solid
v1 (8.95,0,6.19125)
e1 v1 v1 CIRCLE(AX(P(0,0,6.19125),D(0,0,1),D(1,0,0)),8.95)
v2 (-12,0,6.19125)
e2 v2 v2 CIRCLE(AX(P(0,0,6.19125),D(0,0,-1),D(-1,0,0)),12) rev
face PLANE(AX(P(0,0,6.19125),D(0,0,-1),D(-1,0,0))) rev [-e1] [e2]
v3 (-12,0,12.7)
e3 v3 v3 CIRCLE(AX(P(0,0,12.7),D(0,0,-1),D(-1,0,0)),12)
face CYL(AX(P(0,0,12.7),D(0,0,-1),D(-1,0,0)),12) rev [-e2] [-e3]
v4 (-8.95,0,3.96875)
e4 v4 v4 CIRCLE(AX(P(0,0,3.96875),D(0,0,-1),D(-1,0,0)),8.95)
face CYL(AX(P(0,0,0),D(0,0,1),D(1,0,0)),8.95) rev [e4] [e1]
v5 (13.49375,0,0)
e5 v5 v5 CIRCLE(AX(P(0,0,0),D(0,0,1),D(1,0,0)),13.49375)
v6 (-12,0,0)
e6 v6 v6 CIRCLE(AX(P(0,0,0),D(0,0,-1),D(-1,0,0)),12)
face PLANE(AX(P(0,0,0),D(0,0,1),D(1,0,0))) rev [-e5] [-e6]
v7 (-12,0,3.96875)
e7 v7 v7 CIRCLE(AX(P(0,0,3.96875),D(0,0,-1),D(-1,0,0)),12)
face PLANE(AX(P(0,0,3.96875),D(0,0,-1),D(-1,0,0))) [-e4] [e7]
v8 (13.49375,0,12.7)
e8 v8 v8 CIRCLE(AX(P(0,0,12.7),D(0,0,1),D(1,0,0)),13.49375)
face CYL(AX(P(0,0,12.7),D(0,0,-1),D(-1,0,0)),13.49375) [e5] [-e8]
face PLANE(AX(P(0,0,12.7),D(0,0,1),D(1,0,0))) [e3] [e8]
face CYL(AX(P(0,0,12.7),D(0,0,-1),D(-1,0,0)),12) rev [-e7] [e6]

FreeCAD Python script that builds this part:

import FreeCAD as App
import Part
import Sketcher
from FreeCAD import Vector
Q = App.Units.Quantity

doc = App.newDocument("Part")
params = doc.addObject("Spreadsheet::Sheet", "Params")
for row, (alias, value) in enumerate([
    ("pad1_length", "12.7 mm"),
    ("sketch2_diameter", "24 mm"),
    ("sketch3_diameter", "24 mm"),
    ("pad2_length", "2.2225 mm"),
    ("sketch4_diameter", "17.9 mm"),
], start=1):
    params.set(f"A{row}", alias)
    params.set(f"B{row}", "=" + value)
    params.setAlias(f"B{row}", alias)

body = doc.addObject("PartDesign::Body", "Body")

# Sketch on XY plane
sketch1 = doc.addObject("Sketcher::SketchObject", "Sketch")
body.addObject(sketch1)
sketch1.AttachmentSupport = (doc.XY_Plane, [""])
sketch1.MapMode = "FlatFace"
sketch1.addGeometry(Part.Circle(Vector(0, 0, 0), Vector(0, 0, 1), 13.49375), False)
sketch1.addConstraint([
    Sketcher.Constraint("Coincident", 0, 3, -1, 1),
    Sketcher.Constraint("Diameter", 0, Q("26.9875 mm")),
])
pad1 = doc.addObject("PartDesign::Pad", "Pad")
body.addObject(pad1)
pad1.Profile = sketch1
pad1.setExpression("Length", "Params.pad1_length")

# Sketch on XY plane
sketch2 = doc.addObject("Sketcher::SketchObject", "Sketch001")
body.addObject(sketch2)
sketch2.AttachmentSupport = (doc.XY_Plane, [""])
sketch2.MapMode = "FlatFace"
sketch2.addGeometry(Part.Circle(Vector(0, 0, 0), Vector(0, 0, 1), 12), False)
sketch2.addConstraint([
    Sketcher.Constraint("Coincident", 0, 3, -1, 1),
    Sketcher.Constraint("Diameter", 0, Q("24 mm")),
])
sketch2.setExpression("Constraints[1]", "Params.sketch2_diameter")
pocket1 = doc.addObject("PartDesign::Pocket", "Pocket")
body.addObject(pocket1)
pocket1.Profile = sketch2
pocket1.Type = "ThroughAll"
pocket1.Reversed = True

# Sketch on XY plane
sketch3 = doc.addObject("Sketcher::SketchObject", "Sketch002")
body.addObject(sketch3)
sketch3.AttachmentSupport = (doc.XY_Plane, [""])
sketch3.MapMode = "FlatFace"
sketch3.AttachmentOffset = App.Placement(Vector(0, 0, 3.96875), App.Rotation())
sketch3.addGeometry(Part.Circle(Vector(0, 0, 0), Vector(0, 0, 1), 12), False)
sketch3.addConstraint([
    Sketcher.Constraint("Coincident", 0, 3, -1, 1),
    Sketcher.Constraint("Diameter", 0, Q("24 mm")),
])
sketch3.setExpression("Constraints[1]", "Params.sketch3_diameter")
pad2 = doc.addObject("PartDesign::Pad", "Pad001")
body.addObject(pad2)
pad2.Profile = sketch3
pad2.setExpression("Length", "Params.pad2_length")

# Sketch on XY plane
sketch4 = doc.addObject("Sketcher::SketchObject", "Sketch003")
body.addObject(sketch4)
sketch4.AttachmentSupport = (doc.XY_Plane, [""])
sketch4.MapMode = "FlatFace"
sketch4.AttachmentOffset = App.Placement(Vector(0, 0, 6.19125), App.Rotation())
sketch4.addGeometry(Part.Circle(Vector(0, 0, 0), Vector(0, 0, 1), 8.95), False)
sketch4.addConstraint([
    Sketcher.Constraint("Coincident", 0, 3, -1, 1),
    Sketcher.Constraint("Diameter", 0, Q("17.9 mm")),
])
sketch4.setExpression("Constraints[1]", "Params.sketch4_diameter")
pocket2 = doc.addObject("PartDesign::Pocket", "Pocket001")
body.addObject(pocket2)
pocket2.Profile = sketch4
pocket2.Type = "ThroughAll"

doc.recompute()
